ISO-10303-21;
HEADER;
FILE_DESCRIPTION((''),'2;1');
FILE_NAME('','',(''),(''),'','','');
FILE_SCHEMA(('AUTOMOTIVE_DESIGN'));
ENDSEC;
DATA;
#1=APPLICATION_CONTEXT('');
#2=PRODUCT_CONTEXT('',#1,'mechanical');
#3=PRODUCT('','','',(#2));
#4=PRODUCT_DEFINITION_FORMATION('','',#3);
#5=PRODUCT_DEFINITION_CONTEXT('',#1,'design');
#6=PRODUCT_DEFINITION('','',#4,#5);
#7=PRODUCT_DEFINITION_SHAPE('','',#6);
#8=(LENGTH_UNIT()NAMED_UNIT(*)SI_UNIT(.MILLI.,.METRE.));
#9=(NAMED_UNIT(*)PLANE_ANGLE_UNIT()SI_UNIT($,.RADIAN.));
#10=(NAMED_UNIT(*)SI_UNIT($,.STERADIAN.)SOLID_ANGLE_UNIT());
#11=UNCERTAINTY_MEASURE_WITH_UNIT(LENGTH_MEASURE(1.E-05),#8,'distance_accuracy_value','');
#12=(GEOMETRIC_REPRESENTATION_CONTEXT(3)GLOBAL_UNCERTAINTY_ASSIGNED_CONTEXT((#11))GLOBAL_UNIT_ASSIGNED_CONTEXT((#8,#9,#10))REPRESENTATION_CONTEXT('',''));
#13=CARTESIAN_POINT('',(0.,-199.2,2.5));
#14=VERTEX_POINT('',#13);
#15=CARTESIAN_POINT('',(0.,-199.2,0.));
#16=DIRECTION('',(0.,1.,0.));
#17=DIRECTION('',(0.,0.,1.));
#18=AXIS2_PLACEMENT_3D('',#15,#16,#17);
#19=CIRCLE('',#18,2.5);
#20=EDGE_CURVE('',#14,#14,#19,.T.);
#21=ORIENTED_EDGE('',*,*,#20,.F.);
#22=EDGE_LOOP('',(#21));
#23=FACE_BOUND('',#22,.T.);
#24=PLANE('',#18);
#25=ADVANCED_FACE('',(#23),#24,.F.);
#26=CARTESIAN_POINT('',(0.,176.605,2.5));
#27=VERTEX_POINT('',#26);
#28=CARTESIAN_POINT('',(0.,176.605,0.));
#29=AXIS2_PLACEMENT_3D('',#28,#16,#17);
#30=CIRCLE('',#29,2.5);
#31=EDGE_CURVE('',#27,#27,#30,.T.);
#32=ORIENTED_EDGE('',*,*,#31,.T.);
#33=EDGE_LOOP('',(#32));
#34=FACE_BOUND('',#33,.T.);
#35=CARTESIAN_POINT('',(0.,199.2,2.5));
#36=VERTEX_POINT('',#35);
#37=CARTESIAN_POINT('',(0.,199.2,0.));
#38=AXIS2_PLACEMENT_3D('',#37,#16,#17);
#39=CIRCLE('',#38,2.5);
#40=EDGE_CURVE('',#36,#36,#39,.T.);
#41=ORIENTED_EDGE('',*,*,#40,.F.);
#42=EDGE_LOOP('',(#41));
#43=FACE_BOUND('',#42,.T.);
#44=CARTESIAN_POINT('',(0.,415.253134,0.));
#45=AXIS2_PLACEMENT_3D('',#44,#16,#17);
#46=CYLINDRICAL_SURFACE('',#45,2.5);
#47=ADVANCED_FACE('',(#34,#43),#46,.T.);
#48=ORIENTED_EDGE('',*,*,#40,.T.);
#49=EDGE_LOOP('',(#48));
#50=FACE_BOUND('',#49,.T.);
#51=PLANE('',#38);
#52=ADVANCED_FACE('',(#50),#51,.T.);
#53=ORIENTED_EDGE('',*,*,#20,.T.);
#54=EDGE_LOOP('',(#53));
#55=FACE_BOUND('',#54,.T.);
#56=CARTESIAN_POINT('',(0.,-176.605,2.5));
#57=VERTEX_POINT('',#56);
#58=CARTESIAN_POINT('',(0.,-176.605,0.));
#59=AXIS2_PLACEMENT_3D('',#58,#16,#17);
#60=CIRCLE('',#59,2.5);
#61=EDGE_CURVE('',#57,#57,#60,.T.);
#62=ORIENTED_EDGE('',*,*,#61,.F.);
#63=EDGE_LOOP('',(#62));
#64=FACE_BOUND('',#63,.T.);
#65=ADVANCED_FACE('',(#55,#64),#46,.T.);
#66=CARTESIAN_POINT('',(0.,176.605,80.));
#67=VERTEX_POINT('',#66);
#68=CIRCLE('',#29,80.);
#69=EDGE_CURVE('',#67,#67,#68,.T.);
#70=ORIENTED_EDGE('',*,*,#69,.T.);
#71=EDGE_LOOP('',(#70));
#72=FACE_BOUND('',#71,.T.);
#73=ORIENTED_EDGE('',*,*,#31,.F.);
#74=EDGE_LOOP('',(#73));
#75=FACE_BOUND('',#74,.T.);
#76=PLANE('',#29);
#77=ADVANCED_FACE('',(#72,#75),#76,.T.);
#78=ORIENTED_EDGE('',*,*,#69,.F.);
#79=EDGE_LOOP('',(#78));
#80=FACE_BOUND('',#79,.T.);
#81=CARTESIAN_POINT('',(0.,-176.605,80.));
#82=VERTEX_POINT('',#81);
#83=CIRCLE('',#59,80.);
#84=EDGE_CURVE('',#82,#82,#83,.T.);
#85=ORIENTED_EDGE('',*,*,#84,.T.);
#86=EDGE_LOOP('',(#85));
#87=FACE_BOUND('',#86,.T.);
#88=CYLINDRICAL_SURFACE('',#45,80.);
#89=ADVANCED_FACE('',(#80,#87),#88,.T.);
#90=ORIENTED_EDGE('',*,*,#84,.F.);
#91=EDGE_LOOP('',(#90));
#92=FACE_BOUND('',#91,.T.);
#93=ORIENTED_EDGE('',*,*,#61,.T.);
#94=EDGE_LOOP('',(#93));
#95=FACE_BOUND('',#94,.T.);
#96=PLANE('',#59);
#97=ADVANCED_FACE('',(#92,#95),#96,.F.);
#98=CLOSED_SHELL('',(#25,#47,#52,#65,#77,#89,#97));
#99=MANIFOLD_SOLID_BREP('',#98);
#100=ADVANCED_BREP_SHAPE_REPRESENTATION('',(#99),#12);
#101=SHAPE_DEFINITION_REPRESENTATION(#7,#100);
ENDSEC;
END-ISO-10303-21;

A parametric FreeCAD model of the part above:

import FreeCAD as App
import Part
import Sketcher

V = App.Vector


def add_polygon(sketch, points):
    """Adds a closed chain of lines whose ends are joined by coincident constraints."""
    first, n = sketch.GeometryCount, len(points)
    for a, b in zip(points, points[1:] + points[:1]):
        sketch.addGeometry(Part.LineSegment(App.Vector(*a, 0), App.Vector(*b, 0)), False)
    for i in range(n):
        sketch.addConstraint(Sketcher.Constraint("Coincident", first + i, 2, first + (i + 1) % n, 1))

doc = App.newDocument("Part")
body = doc.addObject("PartDesign::Body", "Body")

sketch1 = body.newObject("Sketcher::SketchObject", "Sketch")
sketch1.AttachmentSupport = (doc.getObject("XY_Plane"), [""])
sketch1.MapMode = "FlatFace"
add_polygon(sketch1, [(2.5, 199.2), (0, 199.2), (0, -199.2), (2.5, -199.2), (2.5, -176.6), (80, -176.6), (80, 176.6), (2.5, 176.6)])
sketch1.addConstraint([
    Sketcher.Constraint("Horizontal", 0),
    Sketcher.Constraint("Vertical", 1),
    Sketcher.Constraint("Horizontal", 2),
    Sketcher.Constraint("Vertical", 3),
    Sketcher.Constraint("Horizontal", 4),
    Sketcher.Constraint("Vertical", 5),
    Sketcher.Constraint("Horizontal", 6),
    Sketcher.Constraint("Vertical", 7),
    Sketcher.Constraint("Symmetric", 0, 2, 1, 2, -1, 1),
    Sketcher.Constraint("Symmetric", 3, 2, 6, 2, -1),
    Sketcher.Constraint("DistanceX", 0, 2, 0, 1, 2.5),
    Sketcher.Constraint("DistanceX", 4, 1, 4, 2, 77.5),
    Sketcher.Constraint("DistanceY", 1, 2, 1, 1, 398.4),
    Sketcher.Constraint("DistanceY", 5, 1, 5, 2, 353.21),
])
revolution = body.newObject("PartDesign::Revolution", "Revolution")
revolution.Profile = sketch1
revolution.ReferenceAxis = (sketch1, ["V_Axis"])
revolution.Angle = 360

doc.recompute()
